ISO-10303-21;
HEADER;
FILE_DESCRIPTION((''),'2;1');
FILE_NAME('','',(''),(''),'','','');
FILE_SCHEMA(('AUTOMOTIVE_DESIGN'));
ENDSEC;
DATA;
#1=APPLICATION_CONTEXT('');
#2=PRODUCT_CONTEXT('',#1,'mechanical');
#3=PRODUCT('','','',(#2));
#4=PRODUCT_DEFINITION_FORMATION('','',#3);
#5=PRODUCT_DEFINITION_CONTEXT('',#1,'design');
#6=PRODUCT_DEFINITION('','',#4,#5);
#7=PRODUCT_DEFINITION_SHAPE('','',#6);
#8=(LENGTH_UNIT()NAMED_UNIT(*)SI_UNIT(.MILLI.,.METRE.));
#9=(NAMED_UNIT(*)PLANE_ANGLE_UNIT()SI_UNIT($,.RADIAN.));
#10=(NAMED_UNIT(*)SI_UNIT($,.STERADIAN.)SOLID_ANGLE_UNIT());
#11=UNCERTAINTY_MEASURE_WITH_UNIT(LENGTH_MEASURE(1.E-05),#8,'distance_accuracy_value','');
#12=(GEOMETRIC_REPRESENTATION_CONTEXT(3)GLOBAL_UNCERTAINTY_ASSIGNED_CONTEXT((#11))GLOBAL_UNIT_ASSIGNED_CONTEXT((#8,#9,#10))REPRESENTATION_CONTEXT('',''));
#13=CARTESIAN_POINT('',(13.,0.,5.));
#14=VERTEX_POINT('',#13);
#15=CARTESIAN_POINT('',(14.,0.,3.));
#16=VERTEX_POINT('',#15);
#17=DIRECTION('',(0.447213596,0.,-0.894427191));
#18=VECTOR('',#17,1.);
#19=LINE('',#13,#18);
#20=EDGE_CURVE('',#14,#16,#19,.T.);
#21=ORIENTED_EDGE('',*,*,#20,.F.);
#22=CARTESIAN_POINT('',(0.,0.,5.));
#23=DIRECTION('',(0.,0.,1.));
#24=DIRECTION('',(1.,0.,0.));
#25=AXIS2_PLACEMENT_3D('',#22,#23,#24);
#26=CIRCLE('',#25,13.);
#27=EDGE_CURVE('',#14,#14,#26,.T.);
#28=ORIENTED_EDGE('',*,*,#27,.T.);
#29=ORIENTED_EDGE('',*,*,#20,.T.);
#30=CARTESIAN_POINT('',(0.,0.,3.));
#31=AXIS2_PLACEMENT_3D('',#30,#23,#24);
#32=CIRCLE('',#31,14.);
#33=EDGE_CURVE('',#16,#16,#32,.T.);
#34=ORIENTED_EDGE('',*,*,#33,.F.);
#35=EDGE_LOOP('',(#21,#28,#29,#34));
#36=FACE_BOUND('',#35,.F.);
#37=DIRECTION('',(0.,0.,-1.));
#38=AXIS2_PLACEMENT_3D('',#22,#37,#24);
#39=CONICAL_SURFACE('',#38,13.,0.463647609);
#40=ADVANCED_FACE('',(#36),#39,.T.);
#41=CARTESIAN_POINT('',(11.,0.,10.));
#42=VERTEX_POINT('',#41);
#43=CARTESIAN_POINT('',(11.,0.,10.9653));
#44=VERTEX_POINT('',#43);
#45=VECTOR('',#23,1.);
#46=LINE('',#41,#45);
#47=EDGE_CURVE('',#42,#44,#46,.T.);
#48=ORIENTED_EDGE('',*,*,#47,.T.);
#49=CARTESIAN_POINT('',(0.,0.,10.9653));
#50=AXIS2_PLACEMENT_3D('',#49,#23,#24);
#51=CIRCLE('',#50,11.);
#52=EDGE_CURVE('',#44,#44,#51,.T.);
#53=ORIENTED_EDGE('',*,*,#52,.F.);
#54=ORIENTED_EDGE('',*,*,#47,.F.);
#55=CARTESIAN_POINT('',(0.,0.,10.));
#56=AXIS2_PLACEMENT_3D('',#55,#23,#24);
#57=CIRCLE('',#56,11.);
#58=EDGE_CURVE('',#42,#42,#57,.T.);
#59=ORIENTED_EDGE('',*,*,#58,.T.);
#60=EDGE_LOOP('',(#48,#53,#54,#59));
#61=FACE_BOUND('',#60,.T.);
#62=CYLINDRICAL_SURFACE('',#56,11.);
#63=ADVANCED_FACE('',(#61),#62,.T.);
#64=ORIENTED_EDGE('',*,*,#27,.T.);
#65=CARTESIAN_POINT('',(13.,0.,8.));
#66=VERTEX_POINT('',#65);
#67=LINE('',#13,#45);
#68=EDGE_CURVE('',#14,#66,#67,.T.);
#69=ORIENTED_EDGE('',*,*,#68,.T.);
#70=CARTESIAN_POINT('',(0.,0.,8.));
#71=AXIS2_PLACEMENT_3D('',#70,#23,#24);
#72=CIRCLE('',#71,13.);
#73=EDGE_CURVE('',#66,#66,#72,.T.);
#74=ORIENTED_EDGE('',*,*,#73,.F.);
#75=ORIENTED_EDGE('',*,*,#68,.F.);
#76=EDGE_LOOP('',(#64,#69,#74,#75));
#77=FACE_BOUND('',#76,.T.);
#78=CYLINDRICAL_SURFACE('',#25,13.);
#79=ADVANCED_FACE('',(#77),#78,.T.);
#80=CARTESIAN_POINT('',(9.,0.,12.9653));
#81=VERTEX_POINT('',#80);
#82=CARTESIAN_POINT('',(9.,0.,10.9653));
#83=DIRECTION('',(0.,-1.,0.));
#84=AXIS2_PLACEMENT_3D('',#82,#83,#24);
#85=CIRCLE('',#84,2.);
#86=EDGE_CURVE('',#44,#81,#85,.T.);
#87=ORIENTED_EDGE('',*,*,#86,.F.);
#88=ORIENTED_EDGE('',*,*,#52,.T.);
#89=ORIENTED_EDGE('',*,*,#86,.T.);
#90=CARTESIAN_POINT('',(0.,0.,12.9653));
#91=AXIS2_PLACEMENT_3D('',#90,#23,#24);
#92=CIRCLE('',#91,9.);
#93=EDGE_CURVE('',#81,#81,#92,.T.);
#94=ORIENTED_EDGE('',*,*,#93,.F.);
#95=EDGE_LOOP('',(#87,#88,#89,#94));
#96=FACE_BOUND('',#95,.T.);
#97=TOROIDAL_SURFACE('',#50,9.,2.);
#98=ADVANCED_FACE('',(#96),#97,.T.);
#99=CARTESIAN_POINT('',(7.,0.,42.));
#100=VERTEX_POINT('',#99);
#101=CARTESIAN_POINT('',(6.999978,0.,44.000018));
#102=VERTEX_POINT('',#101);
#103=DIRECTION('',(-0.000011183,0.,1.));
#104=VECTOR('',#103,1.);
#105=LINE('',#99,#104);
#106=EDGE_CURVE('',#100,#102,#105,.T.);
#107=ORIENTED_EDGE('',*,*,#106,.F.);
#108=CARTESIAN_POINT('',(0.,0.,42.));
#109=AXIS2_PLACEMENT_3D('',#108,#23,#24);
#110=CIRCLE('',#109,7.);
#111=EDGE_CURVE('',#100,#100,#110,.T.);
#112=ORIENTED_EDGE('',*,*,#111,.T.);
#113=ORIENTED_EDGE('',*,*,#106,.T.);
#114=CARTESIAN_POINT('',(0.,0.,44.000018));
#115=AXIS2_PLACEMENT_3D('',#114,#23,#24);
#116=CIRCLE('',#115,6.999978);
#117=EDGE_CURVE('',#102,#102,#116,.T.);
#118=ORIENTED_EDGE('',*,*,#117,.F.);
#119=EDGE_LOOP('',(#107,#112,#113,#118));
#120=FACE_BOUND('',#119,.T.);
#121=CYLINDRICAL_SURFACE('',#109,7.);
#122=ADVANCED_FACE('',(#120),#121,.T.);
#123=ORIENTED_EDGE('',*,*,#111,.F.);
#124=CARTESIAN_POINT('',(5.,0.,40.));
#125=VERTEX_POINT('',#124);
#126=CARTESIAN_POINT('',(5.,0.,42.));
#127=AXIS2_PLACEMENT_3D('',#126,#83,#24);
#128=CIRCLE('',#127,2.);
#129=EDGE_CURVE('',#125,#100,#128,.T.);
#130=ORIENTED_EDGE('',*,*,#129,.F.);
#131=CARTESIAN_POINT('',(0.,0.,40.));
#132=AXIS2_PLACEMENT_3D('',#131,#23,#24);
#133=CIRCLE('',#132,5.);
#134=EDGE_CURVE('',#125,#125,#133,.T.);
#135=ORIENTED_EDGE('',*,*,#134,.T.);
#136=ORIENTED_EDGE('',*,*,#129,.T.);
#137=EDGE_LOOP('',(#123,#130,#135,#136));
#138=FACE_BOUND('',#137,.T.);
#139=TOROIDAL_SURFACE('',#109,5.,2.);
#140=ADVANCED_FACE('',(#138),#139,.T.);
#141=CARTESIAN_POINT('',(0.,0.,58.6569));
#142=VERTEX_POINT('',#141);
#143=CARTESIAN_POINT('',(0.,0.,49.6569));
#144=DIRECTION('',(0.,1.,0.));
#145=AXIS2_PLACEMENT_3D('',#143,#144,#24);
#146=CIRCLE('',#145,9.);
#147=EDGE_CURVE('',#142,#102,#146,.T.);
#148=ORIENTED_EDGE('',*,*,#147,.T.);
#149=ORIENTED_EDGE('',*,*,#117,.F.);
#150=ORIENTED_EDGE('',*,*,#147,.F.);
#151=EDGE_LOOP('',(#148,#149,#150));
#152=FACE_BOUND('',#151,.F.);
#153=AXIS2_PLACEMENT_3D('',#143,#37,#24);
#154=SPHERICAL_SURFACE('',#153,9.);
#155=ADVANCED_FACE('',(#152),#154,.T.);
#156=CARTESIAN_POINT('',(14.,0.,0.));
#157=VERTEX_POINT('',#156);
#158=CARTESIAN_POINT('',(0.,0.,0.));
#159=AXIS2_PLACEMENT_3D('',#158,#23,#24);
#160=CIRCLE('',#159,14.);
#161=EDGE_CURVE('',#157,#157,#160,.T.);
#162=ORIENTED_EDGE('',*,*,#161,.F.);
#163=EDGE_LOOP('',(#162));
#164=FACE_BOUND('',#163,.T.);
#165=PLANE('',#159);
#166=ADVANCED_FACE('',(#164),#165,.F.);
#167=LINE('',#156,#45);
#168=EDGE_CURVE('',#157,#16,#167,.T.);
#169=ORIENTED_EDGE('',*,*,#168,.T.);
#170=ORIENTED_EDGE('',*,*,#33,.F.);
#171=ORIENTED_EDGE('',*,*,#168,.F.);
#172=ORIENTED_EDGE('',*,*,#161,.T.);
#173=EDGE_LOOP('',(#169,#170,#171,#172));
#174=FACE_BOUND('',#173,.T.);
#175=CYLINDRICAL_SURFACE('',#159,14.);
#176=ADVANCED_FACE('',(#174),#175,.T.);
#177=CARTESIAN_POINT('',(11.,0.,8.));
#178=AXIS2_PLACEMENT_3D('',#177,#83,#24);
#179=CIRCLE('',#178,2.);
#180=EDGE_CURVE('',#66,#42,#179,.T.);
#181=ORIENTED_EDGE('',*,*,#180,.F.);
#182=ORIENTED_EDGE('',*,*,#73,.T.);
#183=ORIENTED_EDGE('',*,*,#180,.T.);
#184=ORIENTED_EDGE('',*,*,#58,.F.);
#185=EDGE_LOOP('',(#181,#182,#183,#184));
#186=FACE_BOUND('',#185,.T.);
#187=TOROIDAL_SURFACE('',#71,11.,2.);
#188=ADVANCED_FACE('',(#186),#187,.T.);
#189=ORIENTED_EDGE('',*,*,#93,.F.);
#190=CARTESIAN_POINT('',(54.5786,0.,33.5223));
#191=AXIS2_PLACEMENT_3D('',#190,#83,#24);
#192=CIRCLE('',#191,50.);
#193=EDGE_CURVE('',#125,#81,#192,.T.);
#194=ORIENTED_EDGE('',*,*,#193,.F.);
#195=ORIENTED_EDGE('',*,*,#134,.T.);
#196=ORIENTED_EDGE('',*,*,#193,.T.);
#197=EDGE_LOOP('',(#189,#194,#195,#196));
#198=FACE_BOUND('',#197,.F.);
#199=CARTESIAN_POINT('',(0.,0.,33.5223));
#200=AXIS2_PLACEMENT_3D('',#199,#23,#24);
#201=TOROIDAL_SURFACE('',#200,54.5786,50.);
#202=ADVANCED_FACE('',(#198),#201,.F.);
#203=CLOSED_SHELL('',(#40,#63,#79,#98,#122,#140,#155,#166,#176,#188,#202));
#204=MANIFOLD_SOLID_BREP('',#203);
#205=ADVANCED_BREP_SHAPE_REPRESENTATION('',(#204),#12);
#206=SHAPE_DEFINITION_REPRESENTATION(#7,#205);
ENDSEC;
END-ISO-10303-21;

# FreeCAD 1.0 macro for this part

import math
import FreeCAD as App
import Part
import Sketcher
Q = App.Units.Quantity

doc = App.newDocument("Part")
params = doc.addObject("Spreadsheet::Sheet", "Params")
for row, (alias, value) in enumerate([
    ("sketch1_radius", "2 mm"),
    ("sketch1_radius2", "50 mm"),
    ("sketch1_radius3", "9 mm"),
    ("sketch1_width", "14 mm"),
    ("sketch1_height", "2 mm"),
    ("revolution_angle", "360 deg"),
], start=1):
    params.set(f"A{row}", alias)
    params.set(f"B{row}", "=" + value)
    params.setAlias(f"B{row}", alias)

body = doc.addObject("PartDesign::Body", "Body")

sketch1 = body.newObject("Sketcher::SketchObject", "Sketch")
sketch1.AttachmentSupport = (doc.getObject("XZ_Plane"), [""])
sketch1.MapMode = "FlatFace"
sketch1.addGeometry([
    Part.LineSegment(App.Vector(11, 10, 0), App.Vector(11, 10.9653, 0)),
    Part.ArcOfCircle(Part.Circle(App.Vector(9, 10.9653, 0), App.Vector(0, 0, 1), 2), math.radians(0), math.radians(90)),
    Part.ArcOfCircle(Part.Circle(App.Vector(54.5786, 33.5223, 0), App.Vector(0, 0, 1), 49.999982), math.radians(172.556177), math.radians(204.276473)),
    Part.ArcOfCircle(Part.Circle(App.Vector(5, 42, 0), App.Vector(0, 0, 1), 2), math.radians(-90), math.radians(0)),
    Part.LineSegment(App.Vector(7, 42, 0), App.Vector(7, 44, 0)),
    Part.ArcOfCircle(Part.Circle(App.Vector(0, 49.6569, 0), App.Vector(0, 0, 1), 9), math.radians(-38.942668), math.radians(90)),
    Part.LineSegment(App.Vector(0, 58.6569, 0), App.Vector(0, 0, 0)),
    Part.LineSegment(App.Vector(0, 0, 0), App.Vector(14, 0, 0)),
    Part.LineSegment(App.Vector(14, 0, 0), App.Vector(14, 3, 0)),
    Part.LineSegment(App.Vector(14, 3, 0), App.Vector(13, 5, 0)),
    Part.LineSegment(App.Vector(13, 5, 0), App.Vector(13, 8, 0)),
    Part.ArcOfCircle(Part.Circle(App.Vector(11, 8, 0), App.Vector(0, 0, 1), 2), math.radians(0), math.radians(90)),
], False)
sketch1.addConstraint([
    Sketcher.Constraint("Tangent", 0, 2, 1, 1),
    Sketcher.Constraint("Coincident", 1, 2, 2, 2),
    Sketcher.Constraint("Coincident", 2, 1, 3, 1),
    Sketcher.Constraint("Tangent", 3, 2, 4, 1),
    Sketcher.Constraint("Coincident", 4, 2, 5, 1),
    Sketcher.Constraint("Coincident", 5, 2, 6, 1),
    Sketcher.Constraint("Coincident", 6, 2, 7, 1),
    Sketcher.Constraint("Coincident", 7, 2, 8, 1),
    Sketcher.Constraint("Coincident", 8, 2, 9, 1),
    Sketcher.Constraint("Coincident", 9, 2, 10, 1),
    Sketcher.Constraint("Tangent", 10, 2, 11, 1),
    Sketcher.Constraint("Coincident", 11, 2, 0, 1),
    Sketcher.Constraint("Vertical", 0),
    Sketcher.Constraint("Vertical", 4),
    Sketcher.Constraint("Vertical", 6),
    Sketcher.Constraint("Horizontal", 7),
    Sketcher.Constraint("Vertical", 8),
    Sketcher.Constraint("Vertical", 10),
    Sketcher.Constraint("Coincident", 6, 2, -1, 1),
    Sketcher.Constraint("Equal", 1, 3),
    Sketcher.Constraint("Equal", 3, 11),
    Sketcher.Constraint("PointOnObject", 5, 3, -2),
    Sketcher.Constraint("Vertical", 11, 3, 0, 2),
    Sketcher.Constraint("Vertical", 3, 3, 2, 1),
    Sketcher.Constraint("Equal", 8, 10),
    Sketcher.Constraint("Radius", 1, Q("2 mm")),
    Sketcher.Constraint("Radius", 2, Q("50 mm")),
    Sketcher.Constraint("Radius", 5, Q("9 mm")),
    Sketcher.Constraint("DistanceX", 7, 1, 7, 2, Q("14 mm")),
    Sketcher.Constraint("DistanceY", 4, 1, 4, 2, Q("2 mm")),
    Sketcher.Constraint("DistanceY", 8, 1, 8, 2, Q("3 mm")),
    Sketcher.Constraint("DistanceX", -1, 1, 1, 3, Q("9 mm")),
    Sketcher.Constraint("DistanceX", -1, 1, 3, 3, Q("5 mm")),
    Sketcher.Constraint("DistanceY", -1, 1, 3, 3, Q("42 mm")),
    Sketcher.Constraint("DistanceY", -1, 1, 11, 3, Q("8 mm")),
    Sketcher.Constraint("DistanceX", -1, 1, 1, 2, Q("9 mm")),
    Sketcher.Constraint("DistanceY", 0, 1, 0, 2, Q("0.9653 mm")),
])
sketch1.setExpression("Constraints[25]", "Params.sketch1_radius")
sketch1.setExpression("Constraints[26]", "Params.sketch1_radius2")
sketch1.setExpression("Constraints[27]", "Params.sketch1_radius3")
sketch1.setExpression("Constraints[28]", "Params.sketch1_width")
sketch1.setExpression("Constraints[29]", "Params.sketch1_height")
revolution = body.newObject("PartDesign::Revolution", "Revolution")
revolution.Profile = sketch1
revolution.ReferenceAxis = (sketch1, ["V_Axis"])
revolution.setExpression("Angle", "Params.revolution_angle")

doc.recompute()
